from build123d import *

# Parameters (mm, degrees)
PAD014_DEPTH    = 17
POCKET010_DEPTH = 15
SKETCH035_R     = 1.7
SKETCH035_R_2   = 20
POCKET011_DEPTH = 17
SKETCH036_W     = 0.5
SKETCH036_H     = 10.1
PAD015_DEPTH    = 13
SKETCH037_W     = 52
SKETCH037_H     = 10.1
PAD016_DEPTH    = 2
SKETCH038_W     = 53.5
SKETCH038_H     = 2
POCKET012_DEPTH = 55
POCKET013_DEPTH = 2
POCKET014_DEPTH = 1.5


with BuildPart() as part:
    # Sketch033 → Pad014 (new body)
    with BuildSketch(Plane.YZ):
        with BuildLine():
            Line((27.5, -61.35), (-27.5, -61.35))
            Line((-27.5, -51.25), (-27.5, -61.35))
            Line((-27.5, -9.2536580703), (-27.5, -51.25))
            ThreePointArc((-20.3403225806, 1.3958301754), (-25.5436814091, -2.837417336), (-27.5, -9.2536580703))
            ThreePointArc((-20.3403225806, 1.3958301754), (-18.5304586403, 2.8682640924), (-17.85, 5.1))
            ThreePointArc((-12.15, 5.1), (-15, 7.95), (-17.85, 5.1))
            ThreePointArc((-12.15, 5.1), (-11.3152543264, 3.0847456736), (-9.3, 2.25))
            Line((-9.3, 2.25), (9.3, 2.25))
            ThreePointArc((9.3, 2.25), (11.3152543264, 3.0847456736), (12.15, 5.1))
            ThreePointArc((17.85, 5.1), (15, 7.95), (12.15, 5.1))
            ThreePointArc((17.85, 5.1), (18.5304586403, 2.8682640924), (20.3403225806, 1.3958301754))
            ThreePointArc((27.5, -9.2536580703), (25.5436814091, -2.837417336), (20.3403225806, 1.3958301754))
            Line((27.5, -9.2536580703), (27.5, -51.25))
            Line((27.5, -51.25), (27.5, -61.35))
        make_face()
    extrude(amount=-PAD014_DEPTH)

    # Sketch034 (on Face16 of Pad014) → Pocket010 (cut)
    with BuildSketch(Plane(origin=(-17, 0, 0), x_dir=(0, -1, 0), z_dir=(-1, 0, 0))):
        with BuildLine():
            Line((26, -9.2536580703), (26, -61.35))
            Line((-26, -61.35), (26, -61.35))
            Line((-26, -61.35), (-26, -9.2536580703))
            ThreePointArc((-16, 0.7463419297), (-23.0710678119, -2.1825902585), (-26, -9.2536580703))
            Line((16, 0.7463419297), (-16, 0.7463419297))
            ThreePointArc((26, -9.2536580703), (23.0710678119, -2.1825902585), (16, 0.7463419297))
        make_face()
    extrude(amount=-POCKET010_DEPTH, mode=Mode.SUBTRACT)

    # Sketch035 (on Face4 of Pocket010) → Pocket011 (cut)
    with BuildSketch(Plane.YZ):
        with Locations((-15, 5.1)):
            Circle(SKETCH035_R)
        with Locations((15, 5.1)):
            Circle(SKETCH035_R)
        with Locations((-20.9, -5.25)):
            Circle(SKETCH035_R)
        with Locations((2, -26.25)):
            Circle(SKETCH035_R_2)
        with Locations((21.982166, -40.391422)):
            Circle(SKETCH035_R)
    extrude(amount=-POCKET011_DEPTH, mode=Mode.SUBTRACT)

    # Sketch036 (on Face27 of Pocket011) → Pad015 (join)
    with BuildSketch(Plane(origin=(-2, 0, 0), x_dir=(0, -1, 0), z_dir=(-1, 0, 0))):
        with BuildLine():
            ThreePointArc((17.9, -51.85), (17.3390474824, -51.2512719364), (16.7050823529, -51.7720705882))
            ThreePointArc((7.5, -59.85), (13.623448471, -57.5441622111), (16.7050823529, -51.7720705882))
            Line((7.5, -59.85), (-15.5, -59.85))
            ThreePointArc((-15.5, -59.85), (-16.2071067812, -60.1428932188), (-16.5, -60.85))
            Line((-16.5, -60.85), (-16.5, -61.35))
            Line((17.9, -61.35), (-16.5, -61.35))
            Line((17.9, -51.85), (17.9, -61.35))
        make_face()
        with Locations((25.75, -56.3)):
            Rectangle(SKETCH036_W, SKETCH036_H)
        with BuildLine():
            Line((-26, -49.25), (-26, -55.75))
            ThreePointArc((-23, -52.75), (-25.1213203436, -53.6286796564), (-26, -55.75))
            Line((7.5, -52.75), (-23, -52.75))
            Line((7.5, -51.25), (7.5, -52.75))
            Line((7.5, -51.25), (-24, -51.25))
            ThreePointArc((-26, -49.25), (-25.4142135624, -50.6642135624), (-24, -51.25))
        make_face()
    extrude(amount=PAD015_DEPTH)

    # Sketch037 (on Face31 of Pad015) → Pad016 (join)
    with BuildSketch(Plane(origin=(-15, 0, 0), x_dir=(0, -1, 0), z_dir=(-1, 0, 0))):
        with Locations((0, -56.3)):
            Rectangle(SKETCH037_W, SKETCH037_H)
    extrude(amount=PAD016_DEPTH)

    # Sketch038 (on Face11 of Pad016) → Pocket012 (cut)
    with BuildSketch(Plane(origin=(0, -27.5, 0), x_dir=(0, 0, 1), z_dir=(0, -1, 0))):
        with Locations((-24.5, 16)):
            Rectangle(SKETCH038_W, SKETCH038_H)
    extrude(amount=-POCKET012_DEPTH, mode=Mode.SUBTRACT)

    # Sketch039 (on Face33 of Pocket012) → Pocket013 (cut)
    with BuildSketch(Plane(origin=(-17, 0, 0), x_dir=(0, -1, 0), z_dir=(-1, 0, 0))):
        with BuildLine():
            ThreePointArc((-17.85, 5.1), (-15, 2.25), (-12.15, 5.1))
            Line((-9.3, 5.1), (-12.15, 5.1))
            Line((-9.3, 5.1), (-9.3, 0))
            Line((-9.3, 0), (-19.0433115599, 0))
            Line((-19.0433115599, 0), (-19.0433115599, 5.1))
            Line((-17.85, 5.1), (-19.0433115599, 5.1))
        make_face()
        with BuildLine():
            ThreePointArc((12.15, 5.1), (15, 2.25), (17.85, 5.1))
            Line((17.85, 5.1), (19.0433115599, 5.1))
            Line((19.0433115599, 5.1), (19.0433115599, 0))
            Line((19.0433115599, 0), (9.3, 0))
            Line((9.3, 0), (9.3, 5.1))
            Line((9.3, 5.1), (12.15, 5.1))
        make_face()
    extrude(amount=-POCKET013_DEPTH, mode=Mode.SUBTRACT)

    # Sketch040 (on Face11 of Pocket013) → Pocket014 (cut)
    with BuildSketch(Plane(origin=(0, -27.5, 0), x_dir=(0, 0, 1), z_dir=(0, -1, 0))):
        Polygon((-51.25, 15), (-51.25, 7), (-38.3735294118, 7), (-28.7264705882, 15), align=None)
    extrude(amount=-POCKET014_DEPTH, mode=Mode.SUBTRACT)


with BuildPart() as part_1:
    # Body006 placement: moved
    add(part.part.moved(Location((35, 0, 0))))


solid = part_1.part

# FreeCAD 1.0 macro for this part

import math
import FreeCAD as App
import Part
import Sketcher
from FreeCAD import Vector


def add_polygon(sketch, points):
    """Adds a closed chain of lines whose ends are joined by coincident constraints."""
    first, n = sketch.GeometryCount, len(points)
    for a, b in zip(points, points[1:] + points[:1]):
        sketch.addGeometry(Part.LineSegment(App.Vector(*a, 0), App.Vector(*b, 0)), False)
    for i in range(n):
        sketch.addConstraint(Sketcher.Constraint("Coincident", first + i, 2, first + (i + 1) % n, 1))

doc = App.newDocument("Part")
params = doc.addObject("Spreadsheet::Sheet", "Params")
for row, (alias, value) in enumerate([
    ("sketch1_radius", "4 mm"),
    ("sketch1_radius2", "11.5 mm"),
    ("sketch1_width", "55 mm"),
    ("sketch1_radius3", "2.85 mm"),
    ("sketch1_width2", "18.6 mm"),
    ("pad1_length", "17 mm"),
    ("sketch2_radius", "10 mm"),
    ("sketch2_width", "32 mm"),
    ("pocket1_length", "15 mm"),
    ("sketch3_diameter", "40 mm"),
    ("sketch3_diameter2", "3.4 mm"),
    ("pocket2_length", "17 mm"),
    ("sketch4_radius", "1 mm"),
    ("sketch4_radius2", "3 mm"),
    ("sketch4_radius3", "2 mm"),
    ("sketch4_radius4", "0.6 mm"),
    ("sketch4_width", "23 mm"),
    ("pad2_length", "13 mm"),
    ("sketch5_width", "52 mm"),
    ("sketch5_height", "10.1 mm"),
    ("pad3_length", "2 mm"),
    ("sketch6_width", "2 mm"),
    ("sketch6_height", "53.5 mm"),
    ("pocket3_length", "55 mm"),
    ("sketch7_radius", "2.85 mm"),
    ("sketch7_height", "5.1 mm"),
    ("sketch7_width", "2.85 mm"),
    ("pocket4_length", "2 mm"),
    ("sketch8_width", "8 mm"),
    ("pocket5_length", "1.5 mm"),
], start=1):
    params.set(f"A{row}", alias)
    params.set(f"B{row}", "=" + value)
    params.setAlias(f"B{row}", alias)

body = doc.addObject("PartDesign::Body", "Body")

sketch1 = doc.addObject("Sketcher::SketchObject", "Sketch")
body.addObject(sketch1)
sketch1.AttachmentSupport = (doc.YZ_Plane, [""])
sketch1.MapMode = "FlatFace"
sketch1.addGeometry([
    Part.LineSegment(Vector(-27.5, -61.35, 0), Vector(27.5, -61.35, 0)),
    Part.LineSegment(Vector(27.5, -61.35, 0), Vector(27.5, -9.253658, 0)),
    Part.ArcOfCircle(Part.Circle(Vector(16, -9.253658, 0), Vector(0, 0, 1), 11.5), math.radians(0), math.radians(67.826077)),
    Part.ArcOfCircle(Part.Circle(Vector(21.85, 5.1, 0), Vector(0, 0, 1), 4), math.radians(180), math.radians(247.826077)),
    Part.ArcOfCircle(Part.Circle(Vector(15, 5.1, 0), Vector(0, 0, 1), 2.85), math.radians(0), math.radians(180)),
    Part.ArcOfCircle(Part.Circle(Vector(9.3, 5.1, 0), Vector(0, 0, 1), 2.85), math.radians(-90), math.radians(0)),
    Part.LineSegment(Vector(9.3, 2.25, 0), Vector(-9.3, 2.25, 0)),
    Part.ArcOfCircle(Part.Circle(Vector(-9.3, 5.1, 0), Vector(0, 0, 1), 2.85), math.radians(180), math.radians(270)),
    Part.ArcOfCircle(Part.Circle(Vector(-15, 5.1, 0), Vector(0, 0, 1), 2.85), math.radians(0), math.radians(180)),
    Part.ArcOfCircle(Part.Circle(Vector(-21.85, 5.1, 0), Vector(0, 0, 1), 4), math.radians(-67.826077), math.radians(0)),
    Part.ArcOfCircle(Part.Circle(Vector(-16, -9.253658, 0), Vector(0, 0, 1), 11.5), math.radians(112.173923), math.radians(180)),
    Part.LineSegment(Vector(-27.5, -9.253658, 0), Vector(-27.5, -61.35, 0)),
], False)
sketch1.addConstraint([
    Sketcher.Constraint("Coincident", 0, 2, 1, 1),
    Sketcher.Constraint("Tangent", 1, 2, 2, 1),
    Sketcher.Constraint("Tangent", 2, 2, 3, 2),
    Sketcher.Constraint("Tangent", 3, 1, 4, 1),
    Sketcher.Constraint("Tangent", 4, 2, 5, 2),
    Sketcher.Constraint("Tangent", 5, 1, 6, 1),
    Sketcher.Constraint("Tangent", 6, 2, 7, 2),
    Sketcher.Constraint("Tangent", 7, 1, 8, 1),
    Sketcher.Constraint("Tangent", 8, 2, 9, 2),
    Sketcher.Constraint("Tangent", 9, 1, 10, 1),
    Sketcher.Constraint("Tangent", 10, 2, 11, 1),
    Sketcher.Constraint("Coincident", 11, 2, 0, 1),
    Sketcher.Constraint("Horizontal", 0),
    Sketcher.Constraint("Vertical", 1),
    Sketcher.Constraint("Horizontal", 6),
    Sketcher.Constraint("Vertical", 11),
    Sketcher.Constraint("Equal", 4, 5),
    Sketcher.Constraint("Equal", 5, 7),
    Sketcher.Constraint("Equal", 7, 8),
    Sketcher.Constraint("Equal", 3, 9),
    Sketcher.Constraint("Equal", 2, 10),
    Sketcher.Constraint("Symmetric", 4, 3, 8, 3, -2),
    Sketcher.Constraint("Symmetric", 2, 3, 10, 3, -2),
    Sketcher.Constraint("Horizontal", 3, 3, 4, 3),
    Sketcher.Constraint("Horizontal", 4, 3, 5, 3),
    Sketcher.Constraint("Radius", 3, 4.0),
    Sketcher.Constraint("Radius", 2, 11.5),
    Sketcher.Constraint("DistanceX", 0, 1, 0, 2, 55.0),
    Sketcher.Constraint("Radius", 4, 2.85),
    Sketcher.Constraint("DistanceX", 6, 2, 6, 1, 18.6),
    Sketcher.Constraint("DistanceY", -1, 1, 3, 3, 5.1),
    Sketcher.Constraint("DistanceY", 11, 2, 6, 2, 63.6),
])
sketch1.setExpression("Constraints[25]", "Params.sketch1_radius")
sketch1.setExpression("Constraints[26]", "Params.sketch1_radius2")
sketch1.setExpression("Constraints[27]", "Params.sketch1_width")
sketch1.setExpression("Constraints[28]", "Params.sketch1_radius3")
sketch1.setExpression("Constraints[29]", "Params.sketch1_width2")
pad1 = doc.addObject("PartDesign::Pad", "Pad")
body.addObject(pad1)
pad1.Profile = sketch1
pad1.setExpression("Length", "Params.pad1_length")
pad1.Reversed = True

sketch2 = doc.addObject("Sketcher::SketchObject", "Sketch001")
body.addObject(sketch2)
sketch2.AttachmentSupport = (doc.YZ_Plane, [""])
sketch2.MapMode = "FlatFace"
sketch2.AttachmentOffset = App.Placement(Vector(0, 0, -17), App.Rotation())
sketch2.addGeometry([
    Part.LineSegment(Vector(-26, -61.35, 0), Vector(-26, -9.253658, 0)),
    Part.ArcOfCircle(Part.Circle(Vector(-16, -9.253658, 0), Vector(0, 0, 1), 10), math.radians(90), math.radians(180)),
    Part.LineSegment(Vector(-16, 0.746342, 0), Vector(16, 0.746342, 0)),
    Part.ArcOfCircle(Part.Circle(Vector(16, -9.253658, 0), Vector(0, 0, 1), 10), math.radians(0), math.radians(90)),
    Part.LineSegment(Vector(26, -9.253658, 0), Vector(26, -61.35, 0)),
    Part.LineSegment(Vector(26, -61.35, 0), Vector(-26, -61.35, 0)),
], False)
sketch2.addConstraint([
    Sketcher.Constraint("Tangent", 0, 2, 1, 2),
    Sketcher.Constraint("Tangent", 1, 1, 2, 1),
    Sketcher.Constraint("Tangent", 2, 2, 3, 2),
    Sketcher.Constraint("Tangent", 3, 1, 4, 1),
    Sketcher.Constraint("Coincident", 4, 2, 5, 1),
    Sketcher.Constraint("Coincident", 5, 2, 0, 1),
    Sketcher.Constraint("Vertical", 0),
    Sketcher.Constraint("Horizontal", 2),
    Sketcher.Constraint("Vertical", 4),
    Sketcher.Constraint("Horizontal", 5),
    Sketcher.Constraint("Equal", 1, 3),
    Sketcher.Constraint("Radius", 1, 10.0),
    Sketcher.Constraint("DistanceX", 2, 1, 2, 2, 32.0),
    Sketcher.Constraint("DistanceX", 1, 3, -1, 1, 16.0),
    Sketcher.Constraint("DistanceY", 4, 2, -1, 1, 61.35),
    Sketcher.Constraint("DistanceY", 0, 1, 0, 2, 52.096342),
])
sketch2.setExpression("Constraints[11]", "Params.sketch2_radius")
sketch2.setExpression("Constraints[12]", "Params.sketch2_width")
pocket1 = doc.addObject("PartDesign::Pocket", "Pocket")
body.addObject(pocket1)
pocket1.Profile = sketch2
pocket1.setExpression("Length", "Params.pocket1_length")
pocket1.Reversed = True

sketch3 = doc.addObject("Sketcher::SketchObject", "Sketch002")
body.addObject(sketch3)
sketch3.AttachmentSupport = (doc.YZ_Plane, [""])
sketch3.MapMode = "FlatFace"
sketch3.addGeometry([
    Part.Circle(Vector(-15, 5.1, 0), Vector(0, 0, 1), 1.7),
    Part.Circle(Vector(15, 5.1, 0), Vector(0, 0, 1), 1.7),
    Part.Circle(Vector(-20.9, -5.25, 0), Vector(0, 0, 1), 1.7),
    Part.Circle(Vector(2, -26.25, 0), Vector(0, 0, 1), 20),
    Part.Circle(Vector(21.982166, -40.391422, 0), Vector(0, 0, 1), 1.7),
], False)
sketch3.addConstraint([
    Sketcher.Constraint("Equal", 0, 1),
    Sketcher.Constraint("Equal", 1, 2),
    Sketcher.Constraint("Equal", 2, 4),
    Sketcher.Constraint("Symmetric", 0, 3, 1, 3, -2),
    Sketcher.Constraint("Diameter", 3, 40.0),
    Sketcher.Constraint("Diameter", 0, 3.4),
    Sketcher.Constraint("DistanceX", 0, 3, -1, 1, 15.0),
    Sketcher.Constraint("DistanceX", -1, 1, 3, 3, 2.0),
    Sketcher.Constraint("DistanceY", 3, 3, 2, 3, 21.0),
    Sketcher.Constraint("DistanceY", -1, 1, 0, 3, 5.1),
    Sketcher.Constraint("DistanceX", 2, 3, -1, 1, 20.9),
    Sketcher.Constraint("DistanceY", 2, 3, -1, 1, 5.25),
    Sketcher.Constraint("DistanceY", 4, 3, 3, 3, 14.141422),
    Sketcher.Constraint("DistanceX", -1, 1, 4, 3, 21.982166),
])
sketch3.setExpression("Constraints[4]", "Params.sketch3_diameter")
sketch3.setExpression("Constraints[5]", "Params.sketch3_diameter2")
pocket2 = doc.addObject("PartDesign::Pocket", "Pocket001")
body.addObject(pocket2)
pocket2.Profile = sketch3
pocket2.setExpression("Length", "Params.pocket2_length")

sketch4 = doc.addObject("Sketcher::SketchObject", "Sketch003")
body.addObject(sketch4)
sketch4.AttachmentSupport = (doc.YZ_Plane, [""])
sketch4.MapMode = "FlatFace"
sketch4.AttachmentOffset = App.Placement(Vector(0, 0, -2), App.Rotation())
sketch4.addGeometry(Part.ArcOfCircle(Part.Circle(Vector(-17.3, -51.85, 0), Vector(0, 0, 1), 0.6), math.radians(7.462794), math.radians(180)), False)
sketch4.addGeometry(Part.ArcOfCircle(Part.Circle(Vector(-7.5, -50.566279, 0), Vector(0, 0, 1), 9.283721), math.radians(-172.537206), math.radians(-90)), False)
sketch4.addGeometry(Part.LineSegment(Vector(-7.5, -59.85, 0), Vector(15.5, -59.85, 0)), False)
sketch4.addGeometry(Part.ArcOfCircle(Part.Circle(Vector(15.5, -60.85, 0), Vector(0, 0, 1), 1), math.radians(0), math.radians(90)), False)
sketch4.addGeometry(Part.LineSegment(Vector(16.5, -60.85, 0), Vector(16.5, -61.35, 0)), False)
sketch4.addGeometry(Part.LineSegment(Vector(16.5, -61.35, 0), Vector(-17.9, -61.35, 0)), False)
sketch4.addGeometry(Part.LineSegment(Vector(-17.9, -61.35, 0), Vector(-17.9, -51.85, 0)), False)
add_polygon(sketch4, [(-25.5, -51.25), (-25.5, -61.35), (-26, -61.35), (-26, -51.25)])
sketch4.addGeometry(Part.LineSegment(Vector(26, -49.25, 0), Vector(26, -55.75, 0)), False)
sketch4.addGeometry(Part.ArcOfCircle(Part.Circle(Vector(23, -55.75, 0), Vector(0, 0, 1), 3), math.radians(0), math.radians(90)), False)
sketch4.addGeometry(Part.LineSegment(Vector(23, -52.75, 0), Vector(-7.5, -52.75, 0)), False)
sketch4.addGeometry(Part.LineSegment(Vector(-7.5, -52.75, 0), Vector(-7.5, -51.25, 0)), False)
sketch4.addGeometry(Part.LineSegment(Vector(-7.5, -51.25, 0), Vector(24, -51.25, 0)), False)
sketch4.addGeometry(Part.ArcOfCircle(Part.Circle(Vector(24, -49.25, 0), Vector(0, 0, 1), 2), math.radians(-90), math.radians(0)), False)
sketch4.addConstraint([
    Sketcher.Constraint("Tangent", 0, 1, 1, 1),
    Sketcher.Constraint("Tangent", 1, 2, 2, 1),
    Sketcher.Constraint("Tangent", 2, 2, 3, 2),
    Sketcher.Constraint("Tangent", 3, 1, 4, 1),
    Sketcher.Constraint("Coincident", 4, 2, 5, 1),
    Sketcher.Constraint("Coincident", 5, 2, 6, 1),
    Sketcher.Constraint("Tangent", 6, 2, 0, 2),
    Sketcher.Constraint("Tangent", 11, 2, 12, 1),
    Sketcher.Constraint("Tangent", 12, 2, 13, 1),
    Sketcher.Constraint("Coincident", 13, 2, 14, 1),
    Sketcher.Constraint("Coincident", 14, 2, 15, 1),
    Sketcher.Constraint("Tangent", 15, 2, 16, 1),
    Sketcher.Constraint("Tangent", 16, 2, 11, 1),
    Sketcher.Constraint("Horizontal", 2),
    Sketcher.Constraint("Vertical", 4),
    Sketcher.Constraint("Horizontal", 5),
    Sketcher.Constraint("Vertical", 6),
    Sketcher.Constraint("Vertical", 7),
    Sketcher.Constraint("Horizontal", 8),
    Sketcher.Constraint("Vertical", 9),
    Sketcher.Constraint("Horizontal", 10),
    Sketcher.Constraint("Vertical", 11),
    Sketcher.Constraint("Horizontal", 13),
    Sketcher.Constraint("Vertical", 14),
    Sketcher.Constraint("Horizontal", 15),
    Sketcher.Constraint("Horizontal", 5, 2, 7, 2),
    Sketcher.Constraint("Horizontal", 10, 2, 14, 2),
    Sketcher.Constraint("Vertical", 1, 2, 13, 2),
    Sketcher.Constraint("Equal", 10, 4),
    Sketcher.Constraint("Radius", 3, 1.0),
    Sketcher.Constraint("Radius", 12, 3.0),
    Sketcher.Constraint("Radius", 16, 2.0),
    Sketcher.Constraint("Radius", 0, 0.6),
    Sketcher.Constraint("DistanceX", 2, 1, 2, 2, 23.0),
    Sketcher.Constraint("DistanceX", 5, 2, 5, 1, 34.4),
    Sketcher.Constraint("DistanceX", 8, 2, 8, 1, 0.5),
    Sketcher.Constraint("DistanceX", 13, 2, 13, 1, 30.5),
    Sketcher.Constraint("DistanceY", 6, 1, 6, 2, 9.5),
    Sketcher.Constraint("DistanceY", 7, 2, 7, 1, 10.1),
    Sketcher.Constraint("DistanceY", 11, 2, 11, 1, 6.5),
    Sketcher.Constraint("DistanceX", -1, 1, 12, 3, 23.0),
    Sketcher.Constraint("DistanceX", 8, 2, -1, 1, 26.0),
    Sketcher.Constraint("DistanceY", 0, 3, -1, 1, 51.85),
])
sketch4.setExpression("Constraints[33]", "Params.sketch4_radius")
sketch4.setExpression("Constraints[34]", "Params.sketch4_radius2")
sketch4.setExpression("Constraints[35]", "Params.sketch4_radius3")
sketch4.setExpression("Constraints[36]", "Params.sketch4_radius4")
sketch4.setExpression("Constraints[37]", "Params.sketch4_width")
pad2 = doc.addObject("PartDesign::Pad", "Pad001")
body.addObject(pad2)
pad2.Profile = sketch4
pad2.setExpression("Length", "Params.pad2_length")
pad2.Reversed = True

sketch5 = doc.addObject("Sketcher::SketchObject", "Sketch004")
body.addObject(sketch5)
sketch5.AttachmentSupport = (doc.YZ_Plane, [""])
sketch5.MapMode = "FlatFace"
sketch5.AttachmentOffset = App.Placement(Vector(0, 0, -15), App.Rotation())
add_polygon(sketch5, [(26, -51.25), (26, -61.35), (-26, -61.35), (-26, -51.25)])
sketch5.addConstraint([
    Sketcher.Constraint("Vertical", 0),
    Sketcher.Constraint("Horizontal", 1),
    Sketcher.Constraint("Vertical", 2),
    Sketcher.Constraint("Horizontal", 3),
    Sketcher.Constraint("DistanceX", 1, 2, 1, 1, 52.0),
    Sketcher.Constraint("DistanceY", 0, 2, 0, 1, 10.1),
    Sketcher.Constraint("DistanceX", -1, 1, 0, 2, 26.0),
    Sketcher.Constraint("DistanceY", 0, 2, -1, 1, 61.35),
])
sketch5.setExpression("Constraints[8]", "Params.sketch5_width")
sketch5.setExpression("Constraints[9]", "Params.sketch5_height")
pad3 = doc.addObject("PartDesign::Pad", "Pad002")
body.addObject(pad3)
pad3.Profile = sketch5
pad3.setExpression("Length", "Params.pad3_length")
pad3.Reversed = True

sketch6 = doc.addObject("Sketcher::SketchObject", "Sketch005")
body.addObject(sketch6)
sketch6.AttachmentSupport = (doc.XZ_Plane, [""])
sketch6.MapMode = "FlatFace"
sketch6.AttachmentOffset = App.Placement(Vector(0, 0, 27.5), App.Rotation())
add_polygon(sketch6, [(-17, -51.25), (-15, -51.25), (-15, 2.25), (-17, 2.25)])
sketch6.addConstraint([
    Sketcher.Constraint("Horizontal", 0),
    Sketcher.Constraint("Vertical", 1),
    Sketcher.Constraint("Horizontal", 2),
    Sketcher.Constraint("Vertical", 3),
    Sketcher.Constraint("DistanceX", 0, 1, 0, 2, 2.0),
    Sketcher.Constraint("DistanceY", 1, 1, 1, 2, 53.5),
    Sketcher.Constraint("DistanceX", 0, 2, -1, 1, 15.0),
    Sketcher.Constraint("DistanceY", 0, 2, -1, 1, 51.25),
])
sketch6.setExpression("Constraints[8]", "Params.sketch6_width")
sketch6.setExpression("Constraints[9]", "Params.sketch6_height")
pocket3 = doc.addObject("PartDesign::Pocket", "Pocket002")
body.addObject(pocket3)
pocket3.Profile = sketch6
pocket3.setExpression("Length", "Params.pocket3_length")

sketch7 = doc.addObject("Sketcher::SketchObject", "Sketch006")
body.addObject(sketch7)
sketch7.AttachmentSupport = (doc.YZ_Plane, [""])
sketch7.MapMode = "FlatFace"
sketch7.AttachmentOffset = App.Placement(Vector(0, 0, -17), App.Rotation())
sketch7.addGeometry([
    Part.ArcOfCircle(Part.Circle(Vector(15, 5.1, 0), Vector(0, 0, 1), 2.85), math.radians(180), math.radians(360)),
    Part.LineSegment(Vector(17.85, 5.1, 0), Vector(19.043312, 5.1, 0)),
    Part.LineSegment(Vector(19.043312, 5.1, 0), Vector(19.043312, 0, 0)),
    Part.LineSegment(Vector(19.043312, 0, 0), Vector(9.3, 0, 0)),
    Part.LineSegment(Vector(9.3, 0, 0), Vector(9.3, 5.1, 0)),
    Part.LineSegment(Vector(9.3, 5.1, 0), Vector(12.15, 5.1, 0)),
    Part.ArcOfCircle(Part.Circle(Vector(-15, 5.1, 0), Vector(0, 0, 1), 2.85), math.radians(180), math.radians(360)),
    Part.LineSegment(Vector(-12.15, 5.1, 0), Vector(-9.3, 5.1, 0)),
    Part.LineSegment(Vector(-9.3, 5.1, 0), Vector(-9.3, 0, 0)),
    Part.LineSegment(Vector(-9.3, 0, 0), Vector(-19.043312, 0, 0)),
    Part.LineSegment(Vector(-19.043312, 0, 0), Vector(-19.043312, 5.1, 0)),
    Part.LineSegment(Vector(-19.043312, 5.1, 0), Vector(-17.85, 5.1, 0)),
], False)
sketch7.addConstraint([
    Sketcher.Constraint("Coincident", 0, 2, 1, 1),
    Sketcher.Constraint("Coincident", 1, 2, 2, 1),
    Sketcher.Constraint("Coincident", 2, 2, 3, 1),
    Sketcher.Constraint("Coincident", 3, 2, 4, 1),
    Sketcher.Constraint("Coincident", 4, 2, 5, 1),
    Sketcher.Constraint("Coincident", 5, 2, 0, 1),
    Sketcher.Constraint("Coincident", 6, 2, 7, 1),
    Sketcher.Constraint("Coincident", 7, 2, 8, 1),
    Sketcher.Constraint("Coincident", 8, 2, 9, 1),
    Sketcher.Constraint("Coincident", 9, 2, 10, 1),
    Sketcher.Constraint("Coincident", 10, 2, 11, 1),
    Sketcher.Constraint("Coincident", 11, 2, 6, 1),
    Sketcher.Constraint("Horizontal", 1),
    Sketcher.Constraint("Vertical", 2),
    Sketcher.Constraint("Horizontal", 3),
    Sketcher.Constraint("Vertical", 4),
    Sketcher.Constraint("Horizontal", 5),
    Sketcher.Constraint("Horizontal", 7),
    Sketcher.Constraint("Vertical", 8),
    Sketcher.Constraint("Horizontal", 9),
    Sketcher.Constraint("Vertical", 10),
    Sketcher.Constraint("Horizontal", 11),
    Sketcher.Constraint("Equal", 0, 6),
    Sketcher.Constraint("Symmetric", 3, 2, 8, 2, -1, 1),
    Sketcher.Constraint("Symmetric", 0, 3, 6, 3, -2),
    Sketcher.Constraint("Symmetric", 2, 2, 9, 2, -2),
    Sketcher.Constraint("Horizontal", 6, 3, 0, 2),
    Sketcher.Constraint("Horizontal", 1, 2, 4, 2),
    Sketcher.Constraint("Horizontal", 5, 2, 6, 2),
    Sketcher.Constraint("Horizontal", 7, 2, 10, 2),
    Sketcher.Constraint("Radius", 0, 2.85),
    Sketcher.Constraint("DistanceY", 2, 2, 2, 1, 5.1),
    Sketcher.Constraint("DistanceX", -1, 1, 0, 3, 15.0),
    Sketcher.Constraint("DistanceX", 5, 1, 5, 2, 2.85),
    Sketcher.Constraint("DistanceX", 1, 1, 1, 2, 1.193312),
])
sketch7.setExpression("Constraints[30]", "Params.sketch7_radius")
sketch7.setExpression("Constraints[31]", "Params.sketch7_height")
sketch7.setExpression("Constraints[33]", "Params.sketch7_width")
pocket4 = doc.addObject("PartDesign::Pocket", "Pocket003")
body.addObject(pocket4)
pocket4.Profile = sketch7
pocket4.setExpression("Length", "Params.pocket4_length")
pocket4.Reversed = True

sketch8 = doc.addObject("Sketcher::SketchObject", "Sketch007")
body.addObject(sketch8)
sketch8.AttachmentSupport = (doc.XZ_Plane, [""])
sketch8.MapMode = "FlatFace"
sketch8.AttachmentOffset = App.Placement(Vector(0, 0, 27.5), App.Rotation())
add_polygon(sketch8, [(-15, -51.25), (-7, -51.25), (-7, -38.373529), (-15, -28.726471)])
sketch8.addConstraint([
    Sketcher.Constraint("Horizontal", 0),
    Sketcher.Constraint("Vertical", 1),
    Sketcher.Constraint("Vertical", 3),
    Sketcher.Constraint("DistanceX", 0, 1, 0, 2, 8.0),
    Sketcher.Constraint("DistanceX", 0, 2, -1, 1, 7.0),
    Sketcher.Constraint("DistanceY", 0, 2, -1, 1, 51.25),
    Sketcher.Constraint("DistanceY", 1, 1, 1, 2, 12.876471),
    Sketcher.Constraint("DistanceY", 3, 2, 3, 1, 22.523529),
])
sketch8.setExpression("Constraints[7]", "Params.sketch8_width")
pocket5 = doc.addObject("PartDesign::Pocket", "Pocket004")
body.addObject(pocket5)
pocket5.Profile = sketch8
pocket5.setExpression("Length", "Params.pocket5_length")
body2 = doc.addObject("PartDesign::Body", "Body001")
doc.recompute()

body.Placement = App.Placement(Vector(35, 0, 0), App.Rotation(Vector(0, 0, 1), 0))
boolean = doc.addObject("PartDesign::Boolean", "Boolean")
body2.addObject(boolean)
boolean.Type = "Fuse"
boolean.addObjects([body])

doc.recompute()
